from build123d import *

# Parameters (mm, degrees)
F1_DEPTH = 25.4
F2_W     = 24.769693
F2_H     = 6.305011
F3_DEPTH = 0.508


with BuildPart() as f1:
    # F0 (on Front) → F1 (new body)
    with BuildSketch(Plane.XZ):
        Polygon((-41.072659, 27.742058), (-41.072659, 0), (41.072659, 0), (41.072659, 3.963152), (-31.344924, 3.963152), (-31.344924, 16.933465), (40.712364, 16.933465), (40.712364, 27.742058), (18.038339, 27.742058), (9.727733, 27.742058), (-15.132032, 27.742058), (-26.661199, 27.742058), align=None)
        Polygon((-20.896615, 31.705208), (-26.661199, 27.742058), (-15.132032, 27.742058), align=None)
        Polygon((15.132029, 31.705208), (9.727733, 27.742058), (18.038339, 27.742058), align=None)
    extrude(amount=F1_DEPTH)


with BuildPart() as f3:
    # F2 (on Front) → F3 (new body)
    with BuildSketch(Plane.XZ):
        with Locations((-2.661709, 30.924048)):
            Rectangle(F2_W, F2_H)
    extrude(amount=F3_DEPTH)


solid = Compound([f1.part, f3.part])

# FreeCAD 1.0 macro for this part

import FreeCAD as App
import Part
import Sketcher
from FreeCAD import Vector
Q = App.Units.Quantity

doc = App.newDocument("Part")
body = doc.addObject("PartDesign::Body", "Body")

sketch1 = body.newObject("Sketcher::SketchObject", "Sketch")
sketch1.AttachmentSupport = (doc.getObject("XZ_Plane"), [""])
sketch1.MapMode = "FlatFace"
sketch1.addGeometry([
    Part.LineSegment(Vector(-41.1, 27.7, 0), Vector(-41.1, 0, 0)),
    Part.LineSegment(Vector(-41.1, 0, 0), Vector(41.1, 0, 0)),
    Part.LineSegment(Vector(41.1, 0, 0), Vector(41.1, 4, 0)),
    Part.LineSegment(Vector(41.1, 4, 0), Vector(-31.3, 4, 0)),
    Part.LineSegment(Vector(-31.3, 4, 0), Vector(-31.3, 16.9, 0)),
    Part.LineSegment(Vector(-31.3, 16.9, 0), Vector(40.7, 16.9, 0)),
    Part.LineSegment(Vector(40.7, 16.9, 0), Vector(40.7, 27.7, 0)),
    Part.LineSegment(Vector(40.7, 27.7, 0), Vector(18, 27.7, 0)),
    Part.LineSegment(Vector(18, 27.7, 0), Vector(15.1, 31.7, 0)),
    Part.LineSegment(Vector(15.1, 31.7, 0), Vector(9.7, 27.7, 0)),
    Part.LineSegment(Vector(9.7, 27.7, 0), Vector(-15.1, 27.7, 0)),
    Part.LineSegment(Vector(-15.1, 27.7, 0), Vector(-20.9, 31.7, 0)),
    Part.LineSegment(Vector(-20.9, 31.7, 0), Vector(-26.7, 27.7, 0)),
    Part.LineSegment(Vector(-26.7, 27.7, 0), Vector(-41.1, 27.7, 0)),
], False)
sketch1.addConstraint([
    Sketcher.Constraint("Coincident", 0, 2, 1, 1),
    Sketcher.Constraint("Coincident", 1, 2, 2, 1),
    Sketcher.Constraint("Coincident", 2, 2, 3, 1),
    Sketcher.Constraint("Coincident", 3, 2, 4, 1),
    Sketcher.Constraint("Coincident", 4, 2, 5, 1),
    Sketcher.Constraint("Coincident", 5, 2, 6, 1),
    Sketcher.Constraint("Coincident", 6, 2, 7, 1),
    Sketcher.Constraint("Coincident", 7, 2, 8, 1),
    Sketcher.Constraint("Coincident", 8, 2, 9, 1),
    Sketcher.Constraint("Coincident", 9, 2, 10, 1),
    Sketcher.Constraint("Coincident", 10, 2, 11, 1),
    Sketcher.Constraint("Coincident", 11, 2, 12, 1),
    Sketcher.Constraint("Coincident", 12, 2, 13, 1),
    Sketcher.Constraint("Coincident", 13, 2, 0, 1),
    Sketcher.Constraint("Vertical", 0),
    Sketcher.Constraint("Horizontal", 1),
    Sketcher.Constraint("Vertical", 2),
    Sketcher.Constraint("Horizontal", 3),
    Sketcher.Constraint("Vertical", 4),
    Sketcher.Constraint("Horizontal", 5),
    Sketcher.Constraint("Vertical", 6),
    Sketcher.Constraint("Horizontal", 7),
    Sketcher.Constraint("Horizontal", 10),
    Sketcher.Constraint("Horizontal", 13),
    Sketcher.Constraint("Symmetric", 0, 2, 1, 2, -1, 1),
    Sketcher.Constraint("Perpendicular", 8, 9),
    Sketcher.Constraint("Horizontal", 7, 2, 9, 2),
    Sketcher.Constraint("Horizontal", 8, 2, 11, 2),
    Sketcher.Constraint("Horizontal", 10, 2, 12, 2),
    Sketcher.Constraint("Equal", 11, 12),
    Sketcher.Constraint("DistanceX", 8, 2, 6, 2, Q("1.0070998 in")),
    Sketcher.Constraint("DistanceX", 1, 1, 1, 2, 82.145318),
    Sketcher.Constraint("DistanceX", 5, 1, 5, 2, 72.057288),
    Sketcher.Constraint("DistanceX", 13, 2, 13, 1, 14.41146),
    Sketcher.Constraint("DistanceY", 0, 2, 0, 1, 27.742058),
    Sketcher.Constraint("DistanceY", 2, 1, 2, 2, 3.963152),
    Sketcher.Constraint("Distance", 8, 4.91459),
    Sketcher.Constraint("DistanceX", 3, 2, 3, 1, 72.417583),
    Sketcher.Constraint("DistanceX", 7, 2, 7, 1, 22.674025),
    Sketcher.Constraint("DistanceX", 10, 2, 10, 1, 24.859765),
    Sketcher.Constraint("DistanceY", 4, 1, 4, 2, 12.970313),
])
pad1 = body.newObject("PartDesign::Pad", "Pad")
pad1.Profile = sketch1
pad1.Length = Q("1 in")
body2 = doc.addObject("PartDesign::Body", "Body001")

sketch2 = body2.newObject("Sketcher::SketchObject", "Sketch001")
sketch2.AttachmentSupport = (doc.getObject("XZ_Plane001"), [""])
sketch2.MapMode = "FlatFace"
sketch2.addGeometry([
    Part.LineSegment(Vector(-15, 34, 0), Vector(-15, 28, 0)),
    Part.LineSegment(Vector(-15, 28, 0), Vector(10, 28, 0)),
    Part.LineSegment(Vector(10, 28, 0), Vector(10, 34, 0)),
    Part.LineSegment(Vector(10, 34, 0), Vector(-15, 34, 0)),
], False)
sketch2.addConstraint([
    Sketcher.Constraint("Coincident", 0, 2, 1, 1),
    Sketcher.Constraint("Coincident", 1, 2, 2, 1),
    Sketcher.Constraint("Coincident", 2, 2, 3, 1),
    Sketcher.Constraint("Coincident", 3, 2, 0, 1),
    Sketcher.Constraint("Vertical", 0),
    Sketcher.Constraint("Horizontal", 1),
    Sketcher.Constraint("Vertical", 2),
    Sketcher.Constraint("Horizontal", 3),
    Sketcher.Constraint("DistanceY", 0, 2, 0, 1, 6.305011),
    Sketcher.Constraint("DistanceX", 1, 1, 1, 2, 24.769693),
    Sketcher.Constraint("DistanceX", 0, 2, -1, 1, 15.046556),
    Sketcher.Constraint("DistanceY", -1, 1, 0, 2, 27.771542),
])
pad2 = body2.newObject("PartDesign::Pad", "Pad001")
pad2.Profile = sketch2
pad2.Length = Q("0.02 in")

doc.recompute()
